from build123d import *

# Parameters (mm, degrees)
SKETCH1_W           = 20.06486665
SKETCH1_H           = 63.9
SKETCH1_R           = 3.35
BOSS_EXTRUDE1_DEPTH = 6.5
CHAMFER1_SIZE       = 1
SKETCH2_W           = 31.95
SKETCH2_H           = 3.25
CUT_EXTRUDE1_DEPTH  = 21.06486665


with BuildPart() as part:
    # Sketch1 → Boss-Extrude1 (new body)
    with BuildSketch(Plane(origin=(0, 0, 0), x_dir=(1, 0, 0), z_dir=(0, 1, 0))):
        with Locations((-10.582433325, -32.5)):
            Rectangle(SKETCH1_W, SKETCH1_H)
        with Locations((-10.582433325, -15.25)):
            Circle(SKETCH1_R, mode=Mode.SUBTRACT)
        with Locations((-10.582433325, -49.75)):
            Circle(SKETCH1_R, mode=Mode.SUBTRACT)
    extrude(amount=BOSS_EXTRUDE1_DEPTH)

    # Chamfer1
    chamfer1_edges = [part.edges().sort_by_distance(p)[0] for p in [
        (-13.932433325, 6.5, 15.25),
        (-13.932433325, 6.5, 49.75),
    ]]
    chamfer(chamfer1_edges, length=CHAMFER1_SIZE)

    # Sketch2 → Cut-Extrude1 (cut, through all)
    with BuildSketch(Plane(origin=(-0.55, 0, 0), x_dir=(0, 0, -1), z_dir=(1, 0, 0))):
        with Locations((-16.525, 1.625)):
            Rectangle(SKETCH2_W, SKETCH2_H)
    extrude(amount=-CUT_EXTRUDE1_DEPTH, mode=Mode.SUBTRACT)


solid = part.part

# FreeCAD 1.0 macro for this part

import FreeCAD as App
import Part
import Sketcher
from FreeCAD import Vector


def edges_at(feature, points):
    """Names of the edges that pass closest to the given points."""
    edges = feature.Shape.Edges
    near = lambda p: min(range(len(edges)), key=lambda i: edges[i].distToShape(Part.Vertex(*p))[0])
    return sorted({f"Edge{near(p) + 1}" for p in points})


def add_polygon(sketch, points):
    """Adds a closed chain of lines whose ends are joined by coincident constraints."""
    first, n = sketch.GeometryCount, len(points)
    for a, b in zip(points, points[1:] + points[:1]):
        sketch.addGeometry(Part.LineSegment(App.Vector(*a, 0), App.Vector(*b, 0)), False)
    for i in range(n):
        sketch.addConstraint(Sketcher.Constraint("Coincident", first + i, 2, first + (i + 1) % n, 1))

doc = App.newDocument("Part")
body = doc.addObject("PartDesign::Body", "Body")

# Sketch on XZ plane
sketch1 = doc.addObject("Sketcher::SketchObject", "Sketch")
body.addObject(sketch1)
sketch1.AttachmentSupport = (doc.XZ_Plane, [""])
sketch1.MapMode = "FlatFace"
add_polygon(sketch1, [(-20.614867, 0.55), (-20.614867, 64.45), (-0.55, 64.45), (-0.55, 0.55)])  # lines 0-3
sketch1.addGeometry(Part.Circle(Vector(-10.582433, 49.75, 0), Vector(0, 0, 1), 3.35), False)  # 4
sketch1.addGeometry(Part.Circle(Vector(-10.582433, 15.25, 0), Vector(0, 0, 1), 3.35), False)  # 5
sketch1.addConstraint(Sketcher.Constraint("Vertical", 0))
sketch1.addConstraint(Sketcher.Constraint("Horizontal", 1))
sketch1.addConstraint(Sketcher.Constraint("Vertical", 2))
sketch1.addConstraint(Sketcher.Constraint("Horizontal", 3))
sketch1.addConstraint(Sketcher.Constraint("Equal", 4, 5))
sketch1.addConstraint(Sketcher.Constraint("Vertical", 4, 3, 5, 3))
sketch1.addConstraint(Sketcher.Constraint("Diameter", 4, 6.7))
sketch1.addConstraint(Sketcher.Constraint("DistanceY", 0, 1, 0, 2, 63.9))
sketch1.addConstraint(Sketcher.Constraint("DistanceY", 5, 3, 4, 3, 34.5))
sketch1.addConstraint(Sketcher.Constraint("DistanceY", 4, 3, 0, 2, 14.7))
sketch1.addConstraint(Sketcher.Constraint("DistanceY", -1, 1, 4, 3, 49.75))
sketch1.addConstraint(Sketcher.Constraint("DistanceX", 1, 2, -1, 1, 0.55))
sketch1.addConstraint(Sketcher.Constraint("DistanceX", 1, 1, 1, 2, 20.064867))
sketch1.addConstraint(Sketcher.Constraint("DistanceX", 4, 3, -1, 1, 10.582433))
pad1 = doc.addObject("PartDesign::Pad", "Pad")
body.addObject(pad1)
pad1.Profile = sketch1
pad1.Length = 6.5
pad1.Reversed = True
doc.recompute()

chamfer = doc.addObject("PartDesign::Chamfer", "Chamfer")
body.addObject(chamfer)
chamfer.Base = (pad1, edges_at(pad1, [(-13.932, 6.5, 15.25), (-13.932, 6.5, 49.75)]))
chamfer.Size = 1

# Sketch on YZ plane
sketch2 = doc.addObject("Sketcher::SketchObject", "Sketch001")
body.addObject(sketch2)
sketch2.AttachmentSupport = (doc.YZ_Plane, [""])
sketch2.MapMode = "FlatFace"
sketch2.AttachmentOffset = App.Placement(Vector(0, 0, -0.55), App.Rotation())
add_polygon(sketch2, [(3.25, 32.5), (0, 32.5), (0, 0.55), (3.25, 0.55)])  # lines 0-3
sketch2.addConstraint(Sketcher.Constraint("Horizontal", 0))
sketch2.addConstraint(Sketcher.Constraint("Vertical", 1))
sketch2.addConstraint(Sketcher.Constraint("Horizontal", 2))
sketch2.addConstraint(Sketcher.Constraint("Vertical", 3))
sketch2.addConstraint(Sketcher.Constraint("PointOnObject", 0, 2, -2))
sketch2.addConstraint(Sketcher.Constraint("DistanceX", 0, 2, 0, 1, 3.25))
sketch2.addConstraint(Sketcher.Constraint("DistanceY", 1, 2, 1, 1, 31.95))
sketch2.addConstraint(Sketcher.Constraint("DistanceY", -1, 1, 0, 2, 32.5))
pocket1 = doc.addObject("PartDesign::Pocket", "Pocket")
body.addObject(pocket1)
pocket1.Profile = sketch2
pocket1.Type = "ThroughAll"

doc.recompute()
